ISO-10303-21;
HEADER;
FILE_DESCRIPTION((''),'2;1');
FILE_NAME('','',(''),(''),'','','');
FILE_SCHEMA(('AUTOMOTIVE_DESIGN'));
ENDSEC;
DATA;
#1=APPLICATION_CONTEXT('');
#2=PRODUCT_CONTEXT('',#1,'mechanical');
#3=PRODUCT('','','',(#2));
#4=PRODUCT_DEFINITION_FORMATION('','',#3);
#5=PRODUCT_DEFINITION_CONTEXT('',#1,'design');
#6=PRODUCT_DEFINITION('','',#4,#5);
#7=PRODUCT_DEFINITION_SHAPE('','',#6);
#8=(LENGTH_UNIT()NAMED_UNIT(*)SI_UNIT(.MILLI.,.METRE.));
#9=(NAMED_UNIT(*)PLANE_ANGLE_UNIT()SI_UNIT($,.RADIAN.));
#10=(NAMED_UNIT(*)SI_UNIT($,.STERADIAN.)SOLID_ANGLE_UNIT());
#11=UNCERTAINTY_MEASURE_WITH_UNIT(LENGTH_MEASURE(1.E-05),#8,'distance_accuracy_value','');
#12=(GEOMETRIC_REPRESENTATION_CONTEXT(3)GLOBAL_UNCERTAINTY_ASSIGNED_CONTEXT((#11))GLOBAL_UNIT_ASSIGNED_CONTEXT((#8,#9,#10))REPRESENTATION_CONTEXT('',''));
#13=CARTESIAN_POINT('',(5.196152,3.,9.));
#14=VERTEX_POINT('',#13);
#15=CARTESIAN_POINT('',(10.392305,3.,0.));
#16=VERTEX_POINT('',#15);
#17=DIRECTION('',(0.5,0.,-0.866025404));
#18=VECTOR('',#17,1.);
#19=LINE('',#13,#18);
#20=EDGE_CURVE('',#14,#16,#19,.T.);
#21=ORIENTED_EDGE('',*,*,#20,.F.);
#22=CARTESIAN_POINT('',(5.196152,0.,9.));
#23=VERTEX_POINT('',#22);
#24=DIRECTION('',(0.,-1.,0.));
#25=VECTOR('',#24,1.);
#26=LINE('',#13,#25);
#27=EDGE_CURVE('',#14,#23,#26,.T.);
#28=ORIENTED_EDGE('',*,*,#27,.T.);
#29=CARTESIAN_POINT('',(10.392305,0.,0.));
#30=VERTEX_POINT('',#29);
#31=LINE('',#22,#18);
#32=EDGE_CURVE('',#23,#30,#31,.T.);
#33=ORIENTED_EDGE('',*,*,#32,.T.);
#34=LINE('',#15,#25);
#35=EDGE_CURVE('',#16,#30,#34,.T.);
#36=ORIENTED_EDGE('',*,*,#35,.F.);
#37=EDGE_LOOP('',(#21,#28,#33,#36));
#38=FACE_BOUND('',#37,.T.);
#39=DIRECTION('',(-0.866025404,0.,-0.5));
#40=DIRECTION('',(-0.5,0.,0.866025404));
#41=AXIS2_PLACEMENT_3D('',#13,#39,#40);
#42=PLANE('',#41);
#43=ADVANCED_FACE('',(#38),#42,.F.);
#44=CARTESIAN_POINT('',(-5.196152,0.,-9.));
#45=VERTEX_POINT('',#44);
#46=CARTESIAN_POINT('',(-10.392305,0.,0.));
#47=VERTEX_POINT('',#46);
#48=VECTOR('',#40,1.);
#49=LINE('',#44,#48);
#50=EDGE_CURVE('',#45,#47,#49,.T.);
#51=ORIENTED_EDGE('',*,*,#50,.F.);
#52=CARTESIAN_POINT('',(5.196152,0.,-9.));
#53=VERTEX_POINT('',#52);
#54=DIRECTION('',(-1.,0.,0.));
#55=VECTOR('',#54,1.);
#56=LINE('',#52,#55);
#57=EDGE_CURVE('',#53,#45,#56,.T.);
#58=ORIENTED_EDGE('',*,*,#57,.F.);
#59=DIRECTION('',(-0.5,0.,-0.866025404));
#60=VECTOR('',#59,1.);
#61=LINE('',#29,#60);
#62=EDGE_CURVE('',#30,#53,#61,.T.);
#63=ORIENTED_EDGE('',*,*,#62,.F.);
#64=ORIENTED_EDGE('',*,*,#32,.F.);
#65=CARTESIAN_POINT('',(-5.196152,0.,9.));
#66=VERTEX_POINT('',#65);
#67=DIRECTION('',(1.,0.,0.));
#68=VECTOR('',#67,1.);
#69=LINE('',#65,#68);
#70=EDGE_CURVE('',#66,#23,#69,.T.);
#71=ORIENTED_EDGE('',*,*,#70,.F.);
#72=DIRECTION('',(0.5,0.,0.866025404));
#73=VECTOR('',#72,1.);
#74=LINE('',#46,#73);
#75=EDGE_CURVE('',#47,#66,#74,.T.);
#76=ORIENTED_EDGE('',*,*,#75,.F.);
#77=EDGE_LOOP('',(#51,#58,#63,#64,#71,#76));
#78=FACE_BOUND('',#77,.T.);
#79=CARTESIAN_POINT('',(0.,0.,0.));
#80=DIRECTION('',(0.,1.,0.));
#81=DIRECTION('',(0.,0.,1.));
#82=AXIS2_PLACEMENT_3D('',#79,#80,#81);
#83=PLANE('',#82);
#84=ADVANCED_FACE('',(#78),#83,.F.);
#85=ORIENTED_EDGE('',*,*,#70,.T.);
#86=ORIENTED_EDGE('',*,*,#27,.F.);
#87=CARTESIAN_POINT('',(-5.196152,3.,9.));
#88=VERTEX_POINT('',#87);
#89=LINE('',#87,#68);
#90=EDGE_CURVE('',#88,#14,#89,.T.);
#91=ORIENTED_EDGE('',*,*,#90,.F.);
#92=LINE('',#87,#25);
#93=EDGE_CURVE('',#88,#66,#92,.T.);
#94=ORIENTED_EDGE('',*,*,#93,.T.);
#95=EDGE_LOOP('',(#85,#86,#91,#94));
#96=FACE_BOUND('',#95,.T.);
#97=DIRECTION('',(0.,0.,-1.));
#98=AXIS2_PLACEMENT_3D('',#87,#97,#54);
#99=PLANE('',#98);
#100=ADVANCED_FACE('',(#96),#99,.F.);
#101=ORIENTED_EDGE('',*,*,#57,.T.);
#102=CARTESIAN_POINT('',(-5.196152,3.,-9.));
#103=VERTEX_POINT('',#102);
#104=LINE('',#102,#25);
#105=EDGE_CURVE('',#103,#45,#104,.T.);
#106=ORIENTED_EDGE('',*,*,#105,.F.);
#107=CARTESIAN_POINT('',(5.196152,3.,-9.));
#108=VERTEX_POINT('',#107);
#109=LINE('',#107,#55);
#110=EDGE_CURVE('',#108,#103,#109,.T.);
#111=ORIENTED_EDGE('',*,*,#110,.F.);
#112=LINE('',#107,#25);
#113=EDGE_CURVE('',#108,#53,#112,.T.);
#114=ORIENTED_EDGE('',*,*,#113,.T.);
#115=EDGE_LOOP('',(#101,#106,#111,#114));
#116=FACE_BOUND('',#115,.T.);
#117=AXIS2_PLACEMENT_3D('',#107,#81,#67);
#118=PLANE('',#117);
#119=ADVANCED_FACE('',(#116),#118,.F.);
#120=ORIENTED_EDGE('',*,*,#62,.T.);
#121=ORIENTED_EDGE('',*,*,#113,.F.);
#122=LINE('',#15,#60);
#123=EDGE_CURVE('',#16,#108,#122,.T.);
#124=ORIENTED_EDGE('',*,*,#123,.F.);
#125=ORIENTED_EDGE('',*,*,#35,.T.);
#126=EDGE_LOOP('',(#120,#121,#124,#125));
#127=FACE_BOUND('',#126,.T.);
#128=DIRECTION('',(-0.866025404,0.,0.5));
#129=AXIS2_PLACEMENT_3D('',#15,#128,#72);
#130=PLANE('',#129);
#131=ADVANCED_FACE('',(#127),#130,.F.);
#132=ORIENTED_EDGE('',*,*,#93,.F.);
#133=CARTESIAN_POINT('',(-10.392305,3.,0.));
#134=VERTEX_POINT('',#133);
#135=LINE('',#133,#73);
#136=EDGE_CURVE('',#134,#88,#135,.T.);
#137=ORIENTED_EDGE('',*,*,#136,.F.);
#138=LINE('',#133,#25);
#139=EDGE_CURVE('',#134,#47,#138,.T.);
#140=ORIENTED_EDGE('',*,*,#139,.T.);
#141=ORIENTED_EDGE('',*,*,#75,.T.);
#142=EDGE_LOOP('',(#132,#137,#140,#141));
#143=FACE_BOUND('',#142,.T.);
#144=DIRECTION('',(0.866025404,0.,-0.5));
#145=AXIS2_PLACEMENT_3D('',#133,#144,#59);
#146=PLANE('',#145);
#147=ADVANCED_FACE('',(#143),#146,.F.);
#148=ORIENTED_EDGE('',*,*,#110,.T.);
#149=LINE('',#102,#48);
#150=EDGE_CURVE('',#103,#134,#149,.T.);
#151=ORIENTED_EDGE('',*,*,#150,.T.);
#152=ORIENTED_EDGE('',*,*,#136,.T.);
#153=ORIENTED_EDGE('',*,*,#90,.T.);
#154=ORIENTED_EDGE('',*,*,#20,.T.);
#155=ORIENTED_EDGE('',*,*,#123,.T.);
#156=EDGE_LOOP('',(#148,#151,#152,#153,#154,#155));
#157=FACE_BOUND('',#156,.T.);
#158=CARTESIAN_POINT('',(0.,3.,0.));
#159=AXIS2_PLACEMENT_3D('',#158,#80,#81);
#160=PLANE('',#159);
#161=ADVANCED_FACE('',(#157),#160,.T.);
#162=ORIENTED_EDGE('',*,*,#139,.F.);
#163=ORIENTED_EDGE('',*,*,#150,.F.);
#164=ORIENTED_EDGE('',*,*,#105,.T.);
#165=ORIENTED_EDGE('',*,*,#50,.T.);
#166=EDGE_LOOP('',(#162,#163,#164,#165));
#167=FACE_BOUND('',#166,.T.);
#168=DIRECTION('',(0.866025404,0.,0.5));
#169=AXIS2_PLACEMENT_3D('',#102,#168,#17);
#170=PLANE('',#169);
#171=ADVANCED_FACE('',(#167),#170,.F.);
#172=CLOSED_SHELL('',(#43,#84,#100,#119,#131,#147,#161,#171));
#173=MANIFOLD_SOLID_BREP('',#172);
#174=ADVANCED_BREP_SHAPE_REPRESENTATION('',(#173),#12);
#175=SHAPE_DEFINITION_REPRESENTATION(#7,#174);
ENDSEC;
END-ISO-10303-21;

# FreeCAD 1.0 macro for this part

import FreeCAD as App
import Part
import Sketcher
from FreeCAD import Vector
Q = App.Units.Quantity


def add_polygon(sketch, points):
    """Adds a closed chain of lines whose ends are joined by coincident constraints."""
    first, n = sketch.GeometryCount, len(points)
    for a, b in zip(points, points[1:] + points[:1]):
        sketch.addGeometry(Part.LineSegment(App.Vector(*a, 0), App.Vector(*b, 0)), False)
    for i in range(n):
        sketch.addConstraint(Sketcher.Constraint("Coincident", first + i, 2, first + (i + 1) % n, 1))

doc = App.newDocument("Part")
params = doc.addObject("Spreadsheet::Sheet", "Params")
for row, (alias, value) in enumerate([
    ("pad1_length", "3 mm"),
], start=1):
    params.set(f"A{row}", alias)
    params.set(f"B{row}", "=" + value)
    params.setAlias(f"B{row}", alias)

body = doc.addObject("PartDesign::Body", "Body")

# Sketch on XZ plane
sketch1 = body.newObject("Sketcher::SketchObject", "Sketch")
sketch1.AttachmentSupport = (doc.getObject("XZ_Plane"), [""])
sketch1.MapMode = "FlatFace"
add_polygon(sketch1, [(5, -9), (-5, -9), (-10, 0), (-5, 9), (5, 9), (10, 0)])  # lines 0-5
sketch1.addConstraint([
    Sketcher.Constraint("Horizontal", 0),
    Sketcher.Constraint("Horizontal", 3),
    Sketcher.Constraint("Symmetric", 0, 2, 3, 2, -1, 1),
    Sketcher.Constraint("Symmetric", 1, 2, 4, 2, -1, 1),
    Sketcher.Constraint("PointOnObject", 1, 2, -1),
    Sketcher.Constraint("Parallel", 2, 5),
    Sketcher.Constraint("Vertical", 0, 2, 2, 2),
    Sketcher.Constraint("Angle", 1, Q("120 deg")),
    Sketcher.Constraint("DistanceY", 0, 2, -1, 1, 9.0),
    Sketcher.Constraint("DistanceX", 0, 2, 0, 1, 10.392305),
])
pad1 = body.newObject("PartDesign::Pad", "Pad")
pad1.Profile = sketch1
pad1.setExpression("Length", "Params.pad1_length")
pad1.Reversed = True

doc.recompute()
